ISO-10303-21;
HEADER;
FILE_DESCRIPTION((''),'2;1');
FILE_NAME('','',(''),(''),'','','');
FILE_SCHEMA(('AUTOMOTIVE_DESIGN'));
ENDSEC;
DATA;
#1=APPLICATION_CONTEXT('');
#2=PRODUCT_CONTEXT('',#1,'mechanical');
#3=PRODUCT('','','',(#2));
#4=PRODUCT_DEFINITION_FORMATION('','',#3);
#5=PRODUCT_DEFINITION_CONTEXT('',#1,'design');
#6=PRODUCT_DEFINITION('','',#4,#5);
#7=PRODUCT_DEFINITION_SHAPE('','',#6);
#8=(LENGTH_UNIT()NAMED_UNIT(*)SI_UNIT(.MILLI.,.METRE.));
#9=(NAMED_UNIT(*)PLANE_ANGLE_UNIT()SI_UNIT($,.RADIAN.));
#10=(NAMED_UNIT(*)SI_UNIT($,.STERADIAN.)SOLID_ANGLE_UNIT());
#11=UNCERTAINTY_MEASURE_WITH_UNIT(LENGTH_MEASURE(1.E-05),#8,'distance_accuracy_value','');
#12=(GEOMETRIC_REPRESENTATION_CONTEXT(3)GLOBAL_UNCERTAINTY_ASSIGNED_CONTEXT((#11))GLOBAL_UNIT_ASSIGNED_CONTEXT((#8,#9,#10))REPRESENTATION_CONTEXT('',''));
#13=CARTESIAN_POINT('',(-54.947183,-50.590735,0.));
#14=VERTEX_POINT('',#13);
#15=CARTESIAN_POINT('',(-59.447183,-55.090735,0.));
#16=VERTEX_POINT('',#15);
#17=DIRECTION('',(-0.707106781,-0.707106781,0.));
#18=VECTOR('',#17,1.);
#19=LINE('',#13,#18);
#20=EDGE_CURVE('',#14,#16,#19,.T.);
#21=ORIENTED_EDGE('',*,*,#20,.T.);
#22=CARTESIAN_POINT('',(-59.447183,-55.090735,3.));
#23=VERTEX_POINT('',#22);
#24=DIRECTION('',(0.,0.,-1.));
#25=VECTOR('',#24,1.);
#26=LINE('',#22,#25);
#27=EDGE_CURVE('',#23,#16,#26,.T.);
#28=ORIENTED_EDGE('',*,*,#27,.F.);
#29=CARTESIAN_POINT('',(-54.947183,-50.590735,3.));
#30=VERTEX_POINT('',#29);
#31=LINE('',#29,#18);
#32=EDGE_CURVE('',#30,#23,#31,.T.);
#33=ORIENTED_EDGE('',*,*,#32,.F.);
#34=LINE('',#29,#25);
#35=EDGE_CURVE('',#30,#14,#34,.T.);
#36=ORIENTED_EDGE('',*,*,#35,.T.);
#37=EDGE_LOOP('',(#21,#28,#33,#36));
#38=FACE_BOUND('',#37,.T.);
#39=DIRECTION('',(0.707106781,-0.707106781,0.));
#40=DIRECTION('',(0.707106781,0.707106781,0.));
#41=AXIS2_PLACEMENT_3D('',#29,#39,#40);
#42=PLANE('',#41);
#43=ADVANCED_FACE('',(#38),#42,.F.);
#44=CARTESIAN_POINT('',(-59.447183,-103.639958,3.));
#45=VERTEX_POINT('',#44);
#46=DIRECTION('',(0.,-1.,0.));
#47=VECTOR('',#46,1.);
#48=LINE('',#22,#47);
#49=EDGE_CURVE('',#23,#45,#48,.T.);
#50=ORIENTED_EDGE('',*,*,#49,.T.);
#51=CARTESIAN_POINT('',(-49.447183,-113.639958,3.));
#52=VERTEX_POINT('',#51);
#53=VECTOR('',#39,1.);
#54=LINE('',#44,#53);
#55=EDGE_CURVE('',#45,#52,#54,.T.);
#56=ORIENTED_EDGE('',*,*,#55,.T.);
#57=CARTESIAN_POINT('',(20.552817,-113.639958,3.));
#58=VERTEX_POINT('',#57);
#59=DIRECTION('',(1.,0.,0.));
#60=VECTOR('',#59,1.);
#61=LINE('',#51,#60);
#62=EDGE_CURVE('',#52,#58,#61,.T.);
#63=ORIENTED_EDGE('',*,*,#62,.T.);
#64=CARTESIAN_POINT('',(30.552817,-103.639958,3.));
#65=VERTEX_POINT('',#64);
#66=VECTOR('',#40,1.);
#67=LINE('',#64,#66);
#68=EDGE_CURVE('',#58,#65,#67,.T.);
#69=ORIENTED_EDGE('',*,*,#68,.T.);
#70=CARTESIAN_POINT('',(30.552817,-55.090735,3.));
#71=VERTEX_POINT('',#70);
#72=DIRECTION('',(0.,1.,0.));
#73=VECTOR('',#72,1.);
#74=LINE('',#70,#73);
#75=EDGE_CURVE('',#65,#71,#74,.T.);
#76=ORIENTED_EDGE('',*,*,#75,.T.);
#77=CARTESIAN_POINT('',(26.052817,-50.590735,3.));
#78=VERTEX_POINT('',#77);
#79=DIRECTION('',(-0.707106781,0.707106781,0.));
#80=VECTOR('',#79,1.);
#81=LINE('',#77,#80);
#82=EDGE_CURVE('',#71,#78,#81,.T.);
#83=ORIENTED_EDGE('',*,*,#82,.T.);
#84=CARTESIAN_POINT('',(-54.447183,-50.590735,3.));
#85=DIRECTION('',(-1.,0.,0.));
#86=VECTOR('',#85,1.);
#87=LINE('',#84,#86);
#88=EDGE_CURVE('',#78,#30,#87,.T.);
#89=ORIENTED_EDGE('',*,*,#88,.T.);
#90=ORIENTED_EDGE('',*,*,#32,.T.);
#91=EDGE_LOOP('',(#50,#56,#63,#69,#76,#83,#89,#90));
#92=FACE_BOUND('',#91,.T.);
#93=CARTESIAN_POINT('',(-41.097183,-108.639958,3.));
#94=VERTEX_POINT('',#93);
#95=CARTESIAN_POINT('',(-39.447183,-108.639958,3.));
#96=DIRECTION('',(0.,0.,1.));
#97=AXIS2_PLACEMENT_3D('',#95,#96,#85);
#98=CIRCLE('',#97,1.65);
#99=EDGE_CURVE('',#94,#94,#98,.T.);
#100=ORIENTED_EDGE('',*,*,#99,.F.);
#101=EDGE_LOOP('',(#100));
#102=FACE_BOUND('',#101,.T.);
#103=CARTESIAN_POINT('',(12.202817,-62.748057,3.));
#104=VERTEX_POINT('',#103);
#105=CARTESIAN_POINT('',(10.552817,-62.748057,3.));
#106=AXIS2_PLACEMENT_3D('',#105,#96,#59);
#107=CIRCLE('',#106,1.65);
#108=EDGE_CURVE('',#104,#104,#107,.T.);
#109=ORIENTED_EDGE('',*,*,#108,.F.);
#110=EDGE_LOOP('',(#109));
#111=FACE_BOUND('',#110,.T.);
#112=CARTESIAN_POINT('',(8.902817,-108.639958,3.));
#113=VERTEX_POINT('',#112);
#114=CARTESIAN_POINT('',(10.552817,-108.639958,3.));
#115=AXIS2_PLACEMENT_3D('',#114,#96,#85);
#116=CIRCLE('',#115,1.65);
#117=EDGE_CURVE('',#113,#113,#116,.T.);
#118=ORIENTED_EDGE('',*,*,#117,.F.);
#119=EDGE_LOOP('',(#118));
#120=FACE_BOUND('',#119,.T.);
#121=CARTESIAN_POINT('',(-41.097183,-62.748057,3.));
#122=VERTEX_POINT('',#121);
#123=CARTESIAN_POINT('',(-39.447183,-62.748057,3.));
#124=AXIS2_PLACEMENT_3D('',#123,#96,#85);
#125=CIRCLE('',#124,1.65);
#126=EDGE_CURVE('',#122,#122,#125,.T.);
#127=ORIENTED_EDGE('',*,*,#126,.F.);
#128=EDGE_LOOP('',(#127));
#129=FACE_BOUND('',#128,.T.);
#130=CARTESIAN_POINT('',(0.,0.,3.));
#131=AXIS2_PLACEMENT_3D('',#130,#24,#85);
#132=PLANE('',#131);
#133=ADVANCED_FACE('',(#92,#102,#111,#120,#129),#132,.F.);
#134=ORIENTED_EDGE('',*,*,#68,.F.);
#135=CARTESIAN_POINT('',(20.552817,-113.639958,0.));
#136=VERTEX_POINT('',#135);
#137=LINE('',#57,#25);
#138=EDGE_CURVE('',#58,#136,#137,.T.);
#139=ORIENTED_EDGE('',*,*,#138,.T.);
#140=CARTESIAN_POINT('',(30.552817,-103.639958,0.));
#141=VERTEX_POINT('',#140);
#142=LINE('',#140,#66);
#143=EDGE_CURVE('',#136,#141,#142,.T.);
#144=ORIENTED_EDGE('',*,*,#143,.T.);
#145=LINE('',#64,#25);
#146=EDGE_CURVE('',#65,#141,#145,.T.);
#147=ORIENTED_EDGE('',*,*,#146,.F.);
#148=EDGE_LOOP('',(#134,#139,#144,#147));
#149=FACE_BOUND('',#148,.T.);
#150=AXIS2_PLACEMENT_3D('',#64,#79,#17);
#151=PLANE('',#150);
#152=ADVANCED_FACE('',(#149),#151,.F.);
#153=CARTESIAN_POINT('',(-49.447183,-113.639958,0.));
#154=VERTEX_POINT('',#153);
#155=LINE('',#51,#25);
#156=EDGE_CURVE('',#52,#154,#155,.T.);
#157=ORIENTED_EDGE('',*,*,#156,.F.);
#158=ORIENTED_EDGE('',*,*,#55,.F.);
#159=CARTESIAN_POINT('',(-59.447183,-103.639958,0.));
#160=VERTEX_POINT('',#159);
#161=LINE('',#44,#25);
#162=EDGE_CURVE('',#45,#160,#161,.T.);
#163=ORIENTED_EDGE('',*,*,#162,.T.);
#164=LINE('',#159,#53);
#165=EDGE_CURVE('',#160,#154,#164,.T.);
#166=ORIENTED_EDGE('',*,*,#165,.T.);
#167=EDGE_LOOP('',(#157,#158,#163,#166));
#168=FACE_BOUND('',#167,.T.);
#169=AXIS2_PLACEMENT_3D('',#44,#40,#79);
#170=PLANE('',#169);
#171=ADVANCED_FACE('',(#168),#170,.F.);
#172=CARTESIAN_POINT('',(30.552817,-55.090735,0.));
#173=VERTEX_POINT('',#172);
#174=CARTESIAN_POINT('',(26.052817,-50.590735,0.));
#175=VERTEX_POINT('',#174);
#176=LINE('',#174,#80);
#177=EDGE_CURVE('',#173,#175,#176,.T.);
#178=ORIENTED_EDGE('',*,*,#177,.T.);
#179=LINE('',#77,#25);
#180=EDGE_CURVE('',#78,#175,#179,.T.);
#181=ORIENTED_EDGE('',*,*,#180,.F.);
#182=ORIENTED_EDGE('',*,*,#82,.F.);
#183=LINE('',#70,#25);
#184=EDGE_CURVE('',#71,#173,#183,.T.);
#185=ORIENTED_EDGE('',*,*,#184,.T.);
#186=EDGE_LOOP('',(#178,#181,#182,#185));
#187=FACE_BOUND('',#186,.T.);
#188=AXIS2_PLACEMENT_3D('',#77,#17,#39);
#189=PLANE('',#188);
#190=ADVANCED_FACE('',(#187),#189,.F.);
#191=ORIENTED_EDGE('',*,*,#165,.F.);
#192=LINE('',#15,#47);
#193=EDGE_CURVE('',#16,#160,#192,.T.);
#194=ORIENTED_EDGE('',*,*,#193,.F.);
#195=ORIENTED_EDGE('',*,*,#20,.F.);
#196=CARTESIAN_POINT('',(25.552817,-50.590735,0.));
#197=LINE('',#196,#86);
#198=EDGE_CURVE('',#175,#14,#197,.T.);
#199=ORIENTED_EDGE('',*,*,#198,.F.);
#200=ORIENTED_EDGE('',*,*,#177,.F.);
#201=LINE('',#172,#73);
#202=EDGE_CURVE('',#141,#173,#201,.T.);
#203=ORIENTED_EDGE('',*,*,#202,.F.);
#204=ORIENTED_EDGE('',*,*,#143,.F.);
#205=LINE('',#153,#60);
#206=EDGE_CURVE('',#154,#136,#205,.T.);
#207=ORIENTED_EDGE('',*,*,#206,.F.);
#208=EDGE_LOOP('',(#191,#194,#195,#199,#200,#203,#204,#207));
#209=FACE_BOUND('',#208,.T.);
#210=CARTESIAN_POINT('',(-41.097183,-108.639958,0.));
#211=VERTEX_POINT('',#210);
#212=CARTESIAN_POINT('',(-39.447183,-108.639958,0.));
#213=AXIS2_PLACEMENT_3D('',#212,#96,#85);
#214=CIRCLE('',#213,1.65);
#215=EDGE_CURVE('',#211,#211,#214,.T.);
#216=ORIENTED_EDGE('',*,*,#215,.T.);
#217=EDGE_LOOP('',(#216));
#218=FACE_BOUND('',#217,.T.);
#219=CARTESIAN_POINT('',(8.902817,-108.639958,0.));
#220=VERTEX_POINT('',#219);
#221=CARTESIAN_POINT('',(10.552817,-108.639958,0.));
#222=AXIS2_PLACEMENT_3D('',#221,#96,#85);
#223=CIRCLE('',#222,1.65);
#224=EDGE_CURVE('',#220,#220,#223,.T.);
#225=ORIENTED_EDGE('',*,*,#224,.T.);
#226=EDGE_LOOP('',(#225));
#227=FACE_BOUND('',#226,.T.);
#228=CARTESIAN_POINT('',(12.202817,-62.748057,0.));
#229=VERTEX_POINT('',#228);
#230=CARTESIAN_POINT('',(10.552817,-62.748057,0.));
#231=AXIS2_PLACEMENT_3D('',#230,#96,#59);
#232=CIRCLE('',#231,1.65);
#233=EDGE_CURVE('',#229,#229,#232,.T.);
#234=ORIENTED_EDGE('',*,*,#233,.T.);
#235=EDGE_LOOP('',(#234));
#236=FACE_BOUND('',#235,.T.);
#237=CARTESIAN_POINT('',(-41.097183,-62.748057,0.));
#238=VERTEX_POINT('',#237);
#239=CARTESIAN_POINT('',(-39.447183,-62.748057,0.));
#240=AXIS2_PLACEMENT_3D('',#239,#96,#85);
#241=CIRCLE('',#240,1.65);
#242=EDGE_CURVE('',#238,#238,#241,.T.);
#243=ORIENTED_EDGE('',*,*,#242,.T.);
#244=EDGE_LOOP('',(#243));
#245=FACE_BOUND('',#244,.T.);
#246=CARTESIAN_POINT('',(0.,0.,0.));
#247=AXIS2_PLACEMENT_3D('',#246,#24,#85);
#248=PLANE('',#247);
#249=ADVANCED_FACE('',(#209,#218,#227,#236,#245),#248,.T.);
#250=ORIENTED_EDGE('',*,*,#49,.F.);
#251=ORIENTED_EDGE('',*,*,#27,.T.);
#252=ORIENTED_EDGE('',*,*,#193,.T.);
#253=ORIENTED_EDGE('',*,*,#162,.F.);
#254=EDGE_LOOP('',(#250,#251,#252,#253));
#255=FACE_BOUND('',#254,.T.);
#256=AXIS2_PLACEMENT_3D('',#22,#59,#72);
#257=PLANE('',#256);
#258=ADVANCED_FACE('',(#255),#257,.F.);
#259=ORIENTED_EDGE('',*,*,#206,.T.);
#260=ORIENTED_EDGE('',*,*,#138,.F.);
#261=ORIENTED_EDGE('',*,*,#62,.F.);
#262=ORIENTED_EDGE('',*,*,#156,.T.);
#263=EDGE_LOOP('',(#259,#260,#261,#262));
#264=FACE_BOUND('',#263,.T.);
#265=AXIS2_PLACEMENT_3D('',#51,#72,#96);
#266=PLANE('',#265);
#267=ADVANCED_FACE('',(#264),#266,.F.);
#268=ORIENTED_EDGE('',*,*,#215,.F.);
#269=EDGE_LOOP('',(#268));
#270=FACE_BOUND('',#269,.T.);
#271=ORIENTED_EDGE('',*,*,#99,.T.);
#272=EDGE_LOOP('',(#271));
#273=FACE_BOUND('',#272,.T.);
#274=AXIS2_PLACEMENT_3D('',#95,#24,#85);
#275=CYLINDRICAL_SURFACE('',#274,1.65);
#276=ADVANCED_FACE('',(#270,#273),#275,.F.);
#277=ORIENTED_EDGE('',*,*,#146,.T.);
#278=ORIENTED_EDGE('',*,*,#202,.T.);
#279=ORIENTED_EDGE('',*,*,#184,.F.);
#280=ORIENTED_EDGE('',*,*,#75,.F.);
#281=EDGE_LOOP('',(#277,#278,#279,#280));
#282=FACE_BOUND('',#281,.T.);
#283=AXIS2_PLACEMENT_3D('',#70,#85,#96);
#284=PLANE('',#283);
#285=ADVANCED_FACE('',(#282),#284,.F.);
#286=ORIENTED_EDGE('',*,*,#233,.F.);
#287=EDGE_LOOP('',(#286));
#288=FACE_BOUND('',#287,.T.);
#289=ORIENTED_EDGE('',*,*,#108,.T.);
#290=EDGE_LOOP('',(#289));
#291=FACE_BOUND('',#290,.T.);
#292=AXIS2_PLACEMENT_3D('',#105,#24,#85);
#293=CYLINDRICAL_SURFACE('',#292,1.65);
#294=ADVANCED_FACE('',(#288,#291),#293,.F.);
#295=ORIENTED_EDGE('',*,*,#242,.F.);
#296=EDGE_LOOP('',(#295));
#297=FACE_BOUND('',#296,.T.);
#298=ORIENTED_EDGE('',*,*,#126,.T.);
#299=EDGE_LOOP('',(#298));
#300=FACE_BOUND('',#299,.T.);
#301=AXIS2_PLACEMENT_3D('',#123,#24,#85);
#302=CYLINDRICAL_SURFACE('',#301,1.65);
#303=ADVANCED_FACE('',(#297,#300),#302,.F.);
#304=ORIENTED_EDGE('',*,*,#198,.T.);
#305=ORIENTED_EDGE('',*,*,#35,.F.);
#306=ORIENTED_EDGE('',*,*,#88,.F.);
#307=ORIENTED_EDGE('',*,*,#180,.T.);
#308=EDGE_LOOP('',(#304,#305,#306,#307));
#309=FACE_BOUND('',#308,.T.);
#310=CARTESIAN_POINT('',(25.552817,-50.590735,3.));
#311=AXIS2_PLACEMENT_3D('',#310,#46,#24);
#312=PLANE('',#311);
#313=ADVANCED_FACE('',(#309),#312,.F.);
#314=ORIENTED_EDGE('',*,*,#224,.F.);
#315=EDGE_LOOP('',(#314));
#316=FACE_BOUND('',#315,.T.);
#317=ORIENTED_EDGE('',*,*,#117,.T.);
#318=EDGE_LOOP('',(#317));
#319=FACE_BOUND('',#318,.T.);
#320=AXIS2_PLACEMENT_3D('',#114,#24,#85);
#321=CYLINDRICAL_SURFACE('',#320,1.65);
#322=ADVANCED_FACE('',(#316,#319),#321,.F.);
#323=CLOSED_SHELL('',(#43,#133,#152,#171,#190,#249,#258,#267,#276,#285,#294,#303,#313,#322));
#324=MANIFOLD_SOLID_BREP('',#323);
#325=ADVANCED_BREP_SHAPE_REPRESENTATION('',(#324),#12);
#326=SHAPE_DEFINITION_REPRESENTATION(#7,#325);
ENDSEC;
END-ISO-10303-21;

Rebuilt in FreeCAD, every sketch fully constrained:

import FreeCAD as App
import Part
import Sketcher
Q = App.Units.Quantity


def add_polygon(sketch, points):
    """Adds a closed chain of lines whose ends are joined by coincident constraints."""
    first, n = sketch.GeometryCount, len(points)
    for a, b in zip(points, points[1:] + points[:1]):
        sketch.addGeometry(Part.LineSegment(App.Vector(*a, 0), App.Vector(*b, 0)), False)
    for i in range(n):
        sketch.addConstraint(Sketcher.Constraint("Coincident", first + i, 2, first + (i + 1) % n, 1))

doc = App.newDocument("Part")
body = doc.addObject("PartDesign::Body", "Body")

# Sketch on XY plane
sketch1 = body.newObject("Sketcher::SketchObject", "Sketch")
sketch1.AttachmentSupport = (doc.getObject("XY_Plane"), [""])
sketch1.MapMode = "FlatFace"
add_polygon(sketch1, [(-49.4, 57.8), (-59.4, 47.8), (-59.4, -0.8), (-54.9, -5.3), (-54.4, -5.3), (-54.4, -50.6), (-54.9, -50.6), (-59.4, -55.1), (-59.4, -103.6), (-49.4, -113.6), (20.6, -113.6), (30.6, -103.6), (30.6, -55.1), (26.1, -50.6), (25.6, -50.6), (25.6, -5.3), (26.1, -5.3), (30.6, -0.8), (30.6, 47.8), (20.6, 57.8)])  # lines 0-19
sketch1.addGeometry(Part.Circle(App.Vector(10.6, -108.6, 0), App.Vector(0, 0, 1), 1.6), False)  # 20
sketch1.addGeometry(Part.Circle(App.Vector(10.6, -62.7, 0), App.Vector(0, 0, 1), 1.6), False)  # 21
sketch1.addGeometry(Part.Circle(App.Vector(-39.4, -108.6, 0), App.Vector(0, 0, 1), 1.6), False)  # 22
sketch1.addGeometry(Part.Circle(App.Vector(-39.4, -62.7, 0), App.Vector(0, 0, 1), 1.6), False)  # 23
add_polygon(sketch1, [(-2.4, 1.2), (-2.4, 21.2), (0.6, 21.2), (0.6, 1.2)])  # lines 24-27
sketch1.addGeometry(Part.Circle(App.Vector(10.6, 52.8, 0), App.Vector(0, 0, 1), 1.6), False)  # 28
add_polygon(sketch1, [(-26.4, -39), (-26.4, -16.8), (-2.4, -16.8), (-2.4, -39)])  # lines 29-32
add_polygon(sketch1, [(-29.4, 1.2), (-29.4, 21.2), (-26.4, 21.2), (-26.4, 1.2)])  # lines 33-36
sketch1.addGeometry(Part.Circle(App.Vector(-39.4, 52.8, 0), App.Vector(0, 0, 1), 1.6), False)  # 37
sketch1.addConstraint([
    Sketcher.Constraint("Vertical", 1),
    Sketcher.Constraint("Horizontal", 3),
    Sketcher.Constraint("Vertical", 4),
    Sketcher.Constraint("Horizontal", 5),
    Sketcher.Constraint("Vertical", 7),
    Sketcher.Constraint("Horizontal", 9),
    Sketcher.Constraint("Vertical", 11),
    Sketcher.Constraint("Horizontal", 13),
    Sketcher.Constraint("Vertical", 14),
    Sketcher.Constraint("Horizontal", 15),
    Sketcher.Constraint("Vertical", 17),
    Sketcher.Constraint("Horizontal", 19),
    Sketcher.Constraint("Vertical", 24),
    Sketcher.Constraint("Horizontal", 25),
    Sketcher.Constraint("Vertical", 26),
    Sketcher.Constraint("Horizontal", 27),
    Sketcher.Constraint("Vertical", 29),
    Sketcher.Constraint("Horizontal", 30),
    Sketcher.Constraint("Vertical", 31),
    Sketcher.Constraint("Horizontal", 32),
    Sketcher.Constraint("Vertical", 33),
    Sketcher.Constraint("Horizontal", 34),
    Sketcher.Constraint("Vertical", 35),
    Sketcher.Constraint("Horizontal", 36),
    Sketcher.Constraint("Equal", 20, 21),
    Sketcher.Constraint("Equal", 21, 22),
    Sketcher.Constraint("Equal", 22, 23),
    Sketcher.Constraint("Equal", 23, 28),
    Sketcher.Constraint("Equal", 28, 37),
    Sketcher.Constraint("Perpendicular", 0, 2),
    Sketcher.Constraint("Perpendicular", 2, 6),
    Sketcher.Constraint("Perpendicular", 6, 8),
    Sketcher.Constraint("Perpendicular", 8, 10),
    Sketcher.Constraint("Perpendicular", 10, 12),
    Sketcher.Constraint("Perpendicular", 12, 16),
    Sketcher.Constraint("Perpendicular", 16, 18),
    Sketcher.Constraint("Horizontal", 20, 3, 22, 3),
    Sketcher.Constraint("Horizontal", 21, 3, 23, 3),
    Sketcher.Constraint("Horizontal", 28, 3, 37, 3),
    Sketcher.Constraint("Horizontal", 7, 2, 10, 2),
    Sketcher.Constraint("Horizontal", 6, 2, 11, 2),
    Sketcher.Constraint("Horizontal", 5, 2, 12, 2),
    Sketcher.Constraint("Horizontal", 3, 2, 14, 2),
    Sketcher.Constraint("Horizontal", 1, 2, 16, 2),
    Sketcher.Constraint("Horizontal", 0, 2, 17, 2),
    Sketcher.Constraint("Horizontal", 25, 2, 33, 2),
    Sketcher.Constraint("Horizontal", 27, 2, 35, 2),
    Sketcher.Constraint("Vertical", 20, 3, 21, 3),
    Sketcher.Constraint("Vertical", 22, 3, 23, 3),
    Sketcher.Constraint("Vertical", 21, 3, 28, 3),
    Sketcher.Constraint("Vertical", 23, 3, 37, 3),
    Sketcher.Constraint("Vertical", 2, 2, 5, 2),
    Sketcher.Constraint("Vertical", 1, 2, 6, 2),
    Sketcher.Constraint("Vertical", 12, 2, 15, 2),
    Sketcher.Constraint("Vertical", 11, 2, 16, 2),
    Sketcher.Constraint("Vertical", 9, 2, 18, 2),
    Sketcher.Constraint("Vertical", 27, 2, 30, 2),
    Sketcher.Constraint("Vertical", 32, 2, 34, 2),
    Sketcher.Constraint("Equal", 5, 13),
    Sketcher.Constraint("Equal", 27, 34),
    Sketcher.Constraint("Equal", 1, 7),
    Sketcher.Constraint("Diameter", 20, Q("3.3 mm")),
    Sketcher.Constraint("DistanceX", 9, 1, 9, 2, Q("70 mm")),
    Sketcher.Constraint("DistanceX", 25, 1, 25, 2, Q("3 mm")),
    Sketcher.Constraint("DistanceX", 30, 1, 30, 2, Q("24 mm")),
    Sketcher.Constraint("DistanceY", 24, 1, 24, 2, Q("20 mm")),
    Sketcher.Constraint("DistanceX", 3, 1, 3, 2, Q("0.5 mm")),
    Sketcher.Constraint("DistanceX", 22, 3, 20, 3, Q("50 mm")),
    Sketcher.Constraint("DistanceX", 0, 2, 37, 3, Q("20 mm")),
    Sketcher.Constraint("DistanceY", 0, 2, 37, 3, Q("5 mm")),
    Sketcher.Constraint("DistanceX", 1, 2, 3, 2, Q("5 mm")),
    Sketcher.Constraint("DistanceY", 22, 3, 7, 2, Q("5 mm")),
    Sketcher.Constraint("DistanceX", 8, 2, 22, 3, Q("10 mm")),
    Sketcher.Constraint("DistanceX", 24, 2, 28, 3, Q("13 mm")),
    Sketcher.Constraint("DistanceY", 20, 3, 28, 3, Q("161.42 mm")),
    Sketcher.Constraint("DistanceY", 24, 2, 28, 3, Q("31.605 mm")),
    Sketcher.Constraint("DistanceY", 20, 3, 21, 3, Q("45.891901 mm")),
    Sketcher.Constraint("DistanceY", 1, 2, 1, 1, Q("48.549223 mm")),
    Sketcher.Constraint("DistanceY", 29, 1, 29, 2, Q("22.230873 mm")),
    Sketcher.Constraint("DistanceY", 20, 3, -1, 1, Q("108.639958 mm")),
    Sketcher.Constraint("DistanceY", 29, 2, -1, 1, Q("16.814522 mm")),
    Sketcher.Constraint("DistanceX", -1, 1, 20, 3, Q("10.552817 mm")),
])
pad1 = body.newObject("PartDesign::Pad", "Pad")
pad1.Profile = sketch1
pad1.Length = 3

# Sketch on XY plane
sketch2 = body.newObject("Sketcher::SketchObject", "Sketch001")
sketch2.AttachmentSupport = (doc.getObject("XY_Plane"), [""])
sketch2.MapMode = "FlatFace"
sketch2.AttachmentOffset = App.Placement(App.Vector(0, 0, 3), App.Rotation())
add_polygon(sketch2, [(-60, 76), (-60, -51), (43, -51), (43, 76)])  # lines 0-3
sketch2.addConstraint([
    Sketcher.Constraint("Vertical", 0),
    Sketcher.Constraint("Horizontal", 1),
    Sketcher.Constraint("Vertical", 2),
    Sketcher.Constraint("Horizontal", 3),
    Sketcher.Constraint("DistanceY", 0, 2, 0, 1, Q("126.11329 mm")),
    Sketcher.Constraint("DistanceX", 1, 1, 1, 2, Q("102.875685 mm")),
    Sketcher.Constraint("DistanceX", -1, 1, 1, 2, Q("42.536521 mm")),
    Sketcher.Constraint("DistanceY", 0, 2, -1, 1, Q("50.590735 mm")),
])
pocket1 = body.newObject("PartDesign::Pocket", "Pocket")
pocket1.Profile = sketch2
pocket1.Length = 10

doc.recompute()
